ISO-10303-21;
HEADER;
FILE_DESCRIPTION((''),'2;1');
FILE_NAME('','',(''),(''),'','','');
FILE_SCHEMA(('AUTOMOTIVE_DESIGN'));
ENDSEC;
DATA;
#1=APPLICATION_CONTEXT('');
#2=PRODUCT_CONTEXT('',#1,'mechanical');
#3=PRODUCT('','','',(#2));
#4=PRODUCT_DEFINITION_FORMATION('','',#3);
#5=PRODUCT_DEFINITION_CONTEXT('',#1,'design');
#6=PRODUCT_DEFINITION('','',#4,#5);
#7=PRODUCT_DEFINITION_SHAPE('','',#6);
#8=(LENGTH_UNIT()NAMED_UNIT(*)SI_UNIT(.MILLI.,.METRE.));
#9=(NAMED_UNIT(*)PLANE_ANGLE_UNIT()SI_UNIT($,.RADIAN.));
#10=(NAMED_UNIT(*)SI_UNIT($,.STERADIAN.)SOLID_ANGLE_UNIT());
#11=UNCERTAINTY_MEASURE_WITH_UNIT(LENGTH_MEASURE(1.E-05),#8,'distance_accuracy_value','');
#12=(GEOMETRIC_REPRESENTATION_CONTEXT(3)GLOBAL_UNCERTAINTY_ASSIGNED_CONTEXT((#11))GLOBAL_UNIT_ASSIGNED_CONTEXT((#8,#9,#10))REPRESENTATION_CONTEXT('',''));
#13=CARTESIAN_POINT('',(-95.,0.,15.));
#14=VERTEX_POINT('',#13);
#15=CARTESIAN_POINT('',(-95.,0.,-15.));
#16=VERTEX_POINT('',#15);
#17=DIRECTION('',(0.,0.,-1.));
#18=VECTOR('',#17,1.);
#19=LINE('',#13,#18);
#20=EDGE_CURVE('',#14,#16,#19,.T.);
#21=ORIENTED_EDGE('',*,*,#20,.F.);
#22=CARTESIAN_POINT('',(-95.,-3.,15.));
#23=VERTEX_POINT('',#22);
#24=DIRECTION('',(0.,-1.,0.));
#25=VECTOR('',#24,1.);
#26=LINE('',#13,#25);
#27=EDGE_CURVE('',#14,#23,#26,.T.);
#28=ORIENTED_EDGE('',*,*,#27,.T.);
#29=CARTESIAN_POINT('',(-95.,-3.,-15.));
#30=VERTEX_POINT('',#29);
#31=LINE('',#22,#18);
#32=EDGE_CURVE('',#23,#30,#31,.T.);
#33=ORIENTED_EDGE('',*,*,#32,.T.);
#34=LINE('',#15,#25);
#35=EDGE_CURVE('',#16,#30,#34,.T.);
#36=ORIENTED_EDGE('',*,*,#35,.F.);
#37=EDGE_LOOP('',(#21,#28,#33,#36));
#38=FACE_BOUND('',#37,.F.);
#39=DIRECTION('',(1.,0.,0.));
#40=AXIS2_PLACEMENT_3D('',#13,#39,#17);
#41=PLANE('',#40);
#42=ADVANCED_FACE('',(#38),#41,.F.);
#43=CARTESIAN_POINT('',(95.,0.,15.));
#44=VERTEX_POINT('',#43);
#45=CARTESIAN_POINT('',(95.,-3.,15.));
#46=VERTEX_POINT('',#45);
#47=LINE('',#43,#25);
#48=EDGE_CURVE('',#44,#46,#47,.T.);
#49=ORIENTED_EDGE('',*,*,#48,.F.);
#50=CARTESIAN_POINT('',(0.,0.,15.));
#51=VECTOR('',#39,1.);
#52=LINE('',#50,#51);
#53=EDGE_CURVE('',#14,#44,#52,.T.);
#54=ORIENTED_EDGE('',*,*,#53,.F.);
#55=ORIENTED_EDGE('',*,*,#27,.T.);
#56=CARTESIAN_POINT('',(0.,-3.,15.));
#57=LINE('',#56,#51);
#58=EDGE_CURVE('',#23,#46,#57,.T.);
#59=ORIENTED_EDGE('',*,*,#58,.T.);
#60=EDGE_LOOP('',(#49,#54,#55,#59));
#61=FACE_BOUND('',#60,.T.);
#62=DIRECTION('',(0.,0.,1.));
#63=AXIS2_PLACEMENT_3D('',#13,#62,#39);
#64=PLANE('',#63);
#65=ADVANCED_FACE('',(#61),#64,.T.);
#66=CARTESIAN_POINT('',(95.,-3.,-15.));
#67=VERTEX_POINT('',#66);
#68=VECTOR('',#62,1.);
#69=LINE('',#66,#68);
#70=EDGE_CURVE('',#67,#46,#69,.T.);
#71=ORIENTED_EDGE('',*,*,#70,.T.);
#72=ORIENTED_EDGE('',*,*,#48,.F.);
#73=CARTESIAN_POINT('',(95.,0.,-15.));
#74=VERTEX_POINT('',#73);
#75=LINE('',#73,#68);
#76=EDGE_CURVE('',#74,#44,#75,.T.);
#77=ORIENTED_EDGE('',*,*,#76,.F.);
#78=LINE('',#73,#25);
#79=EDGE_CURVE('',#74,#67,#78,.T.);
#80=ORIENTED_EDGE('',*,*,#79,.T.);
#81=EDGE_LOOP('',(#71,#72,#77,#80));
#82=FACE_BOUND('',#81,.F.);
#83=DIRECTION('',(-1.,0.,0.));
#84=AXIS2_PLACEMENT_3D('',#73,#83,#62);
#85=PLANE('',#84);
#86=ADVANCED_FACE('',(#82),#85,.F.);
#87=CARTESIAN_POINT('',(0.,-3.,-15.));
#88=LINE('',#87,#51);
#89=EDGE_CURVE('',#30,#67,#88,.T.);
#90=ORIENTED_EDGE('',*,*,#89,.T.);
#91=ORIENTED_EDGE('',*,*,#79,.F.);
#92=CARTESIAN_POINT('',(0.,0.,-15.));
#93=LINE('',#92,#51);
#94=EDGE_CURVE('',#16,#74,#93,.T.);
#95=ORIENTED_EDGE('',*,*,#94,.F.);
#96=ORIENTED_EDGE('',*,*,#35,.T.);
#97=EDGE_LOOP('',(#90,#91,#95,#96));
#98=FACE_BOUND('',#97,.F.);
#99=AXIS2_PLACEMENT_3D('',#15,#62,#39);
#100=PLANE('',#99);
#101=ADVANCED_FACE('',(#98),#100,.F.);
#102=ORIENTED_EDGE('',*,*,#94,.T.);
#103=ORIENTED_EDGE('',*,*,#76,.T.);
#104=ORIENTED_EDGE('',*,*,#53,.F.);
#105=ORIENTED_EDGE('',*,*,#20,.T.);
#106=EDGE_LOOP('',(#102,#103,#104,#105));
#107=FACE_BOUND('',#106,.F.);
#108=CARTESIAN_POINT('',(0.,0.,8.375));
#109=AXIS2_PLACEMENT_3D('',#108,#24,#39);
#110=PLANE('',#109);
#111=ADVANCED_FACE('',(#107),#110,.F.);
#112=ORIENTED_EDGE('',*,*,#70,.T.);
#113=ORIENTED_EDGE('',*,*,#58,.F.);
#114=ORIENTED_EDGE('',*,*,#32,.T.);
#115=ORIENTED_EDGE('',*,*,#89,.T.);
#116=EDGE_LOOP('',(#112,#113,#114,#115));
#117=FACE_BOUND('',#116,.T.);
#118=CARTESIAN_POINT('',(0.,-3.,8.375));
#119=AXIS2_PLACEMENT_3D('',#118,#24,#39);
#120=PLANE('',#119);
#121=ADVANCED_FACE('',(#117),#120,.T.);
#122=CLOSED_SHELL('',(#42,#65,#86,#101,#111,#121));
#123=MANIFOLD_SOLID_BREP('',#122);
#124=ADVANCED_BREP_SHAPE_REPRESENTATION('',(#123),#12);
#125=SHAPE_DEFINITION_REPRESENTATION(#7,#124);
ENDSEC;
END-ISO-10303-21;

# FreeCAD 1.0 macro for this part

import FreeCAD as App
import Part
import Sketcher
from FreeCAD import Vector

doc = App.newDocument("Part")
body = doc.addObject("PartDesign::Body", "Body")

sketch1 = body.newObject("Sketcher::SketchObject", "Sketch")
sketch1.AttachmentSupport = (doc.getObject("XZ_Plane"), [""])
sketch1.MapMode = "FlatFace"
sketch1.addGeometry([
    Part.LineSegment(Vector(-95, 15, 0), Vector(-95, -15, 0)),
    Part.LineSegment(Vector(-95, -15, 0), Vector(95, -15, 0)),
    Part.LineSegment(Vector(95, -15, 0), Vector(95, 15, 0)),
    Part.LineSegment(Vector(95, 15, 0), Vector(-95, 15, 0)),
], False)
sketch1.addConstraint([
    Sketcher.Constraint("Coincident", 0, 2, 1, 1),
    Sketcher.Constraint("Coincident", 1, 2, 2, 1),
    Sketcher.Constraint("Coincident", 2, 2, 3, 1),
    Sketcher.Constraint("Coincident", 3, 2, 0, 1),
    Sketcher.Constraint("Vertical", 0),
    Sketcher.Constraint("Horizontal", 1),
    Sketcher.Constraint("Vertical", 2),
    Sketcher.Constraint("Horizontal", 3),
    Sketcher.Constraint("Symmetric", 0, 2, 2, 2, -1, 1),
    Sketcher.Constraint("DistanceX", 1, 1, 1, 2, 190.0),
    Sketcher.Constraint("DistanceY", 0, 2, 0, 1, 30.0),
])
pad1 = body.newObject("PartDesign::Pad", "Pad")
pad1.Profile = sketch1
pad1.Length = 3

doc.recompute()
